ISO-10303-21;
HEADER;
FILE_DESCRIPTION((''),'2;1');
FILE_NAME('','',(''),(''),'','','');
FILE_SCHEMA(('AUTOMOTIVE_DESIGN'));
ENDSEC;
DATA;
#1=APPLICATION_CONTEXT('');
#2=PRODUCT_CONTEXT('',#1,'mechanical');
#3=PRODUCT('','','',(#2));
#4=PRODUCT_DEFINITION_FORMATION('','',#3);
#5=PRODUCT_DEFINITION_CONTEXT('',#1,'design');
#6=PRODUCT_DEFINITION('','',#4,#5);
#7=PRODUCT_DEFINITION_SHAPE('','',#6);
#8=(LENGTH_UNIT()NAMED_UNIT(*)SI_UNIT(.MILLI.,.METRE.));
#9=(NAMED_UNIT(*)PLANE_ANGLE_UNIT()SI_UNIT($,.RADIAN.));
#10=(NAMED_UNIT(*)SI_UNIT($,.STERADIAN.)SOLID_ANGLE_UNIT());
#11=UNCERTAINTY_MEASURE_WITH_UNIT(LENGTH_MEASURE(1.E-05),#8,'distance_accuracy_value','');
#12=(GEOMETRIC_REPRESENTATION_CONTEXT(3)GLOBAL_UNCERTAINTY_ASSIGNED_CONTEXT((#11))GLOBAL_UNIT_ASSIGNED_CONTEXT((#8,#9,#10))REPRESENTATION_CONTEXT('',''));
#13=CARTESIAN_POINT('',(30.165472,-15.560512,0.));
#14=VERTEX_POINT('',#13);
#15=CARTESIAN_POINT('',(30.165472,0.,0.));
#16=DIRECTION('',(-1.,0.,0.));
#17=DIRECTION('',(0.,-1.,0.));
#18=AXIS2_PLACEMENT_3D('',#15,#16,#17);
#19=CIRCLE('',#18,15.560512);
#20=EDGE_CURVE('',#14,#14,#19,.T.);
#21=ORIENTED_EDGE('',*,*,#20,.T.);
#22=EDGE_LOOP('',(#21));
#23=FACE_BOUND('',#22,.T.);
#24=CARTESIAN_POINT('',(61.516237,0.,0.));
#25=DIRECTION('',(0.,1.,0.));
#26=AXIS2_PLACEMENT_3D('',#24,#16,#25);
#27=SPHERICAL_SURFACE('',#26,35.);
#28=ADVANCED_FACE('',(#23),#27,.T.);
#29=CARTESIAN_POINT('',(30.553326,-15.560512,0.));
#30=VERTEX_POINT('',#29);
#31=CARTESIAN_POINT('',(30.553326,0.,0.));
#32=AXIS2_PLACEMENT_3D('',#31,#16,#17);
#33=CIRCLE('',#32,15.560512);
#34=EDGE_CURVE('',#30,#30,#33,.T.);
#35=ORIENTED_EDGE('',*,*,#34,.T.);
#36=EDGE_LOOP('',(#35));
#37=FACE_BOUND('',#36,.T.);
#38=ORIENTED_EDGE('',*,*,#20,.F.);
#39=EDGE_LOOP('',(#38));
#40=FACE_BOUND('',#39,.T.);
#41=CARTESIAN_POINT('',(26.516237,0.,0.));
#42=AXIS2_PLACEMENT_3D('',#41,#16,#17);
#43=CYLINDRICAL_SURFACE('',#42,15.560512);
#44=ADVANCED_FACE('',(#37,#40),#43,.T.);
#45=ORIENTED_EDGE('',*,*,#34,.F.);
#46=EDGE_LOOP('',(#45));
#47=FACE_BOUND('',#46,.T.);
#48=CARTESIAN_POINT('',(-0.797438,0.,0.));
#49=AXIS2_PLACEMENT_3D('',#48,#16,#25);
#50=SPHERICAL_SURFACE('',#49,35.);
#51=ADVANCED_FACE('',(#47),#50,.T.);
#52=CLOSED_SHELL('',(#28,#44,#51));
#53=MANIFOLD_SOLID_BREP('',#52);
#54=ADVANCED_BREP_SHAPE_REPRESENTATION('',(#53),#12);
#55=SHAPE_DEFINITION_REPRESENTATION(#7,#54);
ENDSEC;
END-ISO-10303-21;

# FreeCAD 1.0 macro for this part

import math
import FreeCAD as App
import Part
import Sketcher

V = App.Vector
Q = App.Units.Quantity

doc = App.newDocument("Part")
body = doc.addObject("PartDesign::Body", "Body")

# Sketch on XY plane
sketch1 = body.newObject("Sketcher::SketchObject", "Sketch")
sketch1.AttachmentSupport = (doc.getObject("XY_Plane"), [""])
sketch1.MapMode = "FlatFace"
sketch1.addGeometry([
    Part.LineSegment(V(26.52, 0, 0), V(34.2, 0, 0)),
    Part.ArcOfCircle(Part.Circle(V(-0.8, 0, 0), V(0, 0, 1), 35), math.radians(0), math.radians(26)),
    Part.LineSegment(V(30.55, 15.56, 0), V(30.17, 15.56, 0)),
    Part.ArcOfCircle(Part.Circle(V(61.52, 0, 0), V(0, 0, 1), 35), math.radians(154), math.radians(180)),
], False)
sketch1.addConstraint([
    Sketcher.Constraint("Coincident", 0, 2, 1, 1),
    Sketcher.Constraint("Coincident", 1, 2, 2, 1),
    Sketcher.Constraint("Coincident", 2, 2, 3, 1),
    Sketcher.Constraint("Coincident", 3, 2, 0, 1),
    Sketcher.Constraint("Horizontal", 0),
    Sketcher.Constraint("Horizontal", 2),
    Sketcher.Constraint("Equal", 1, 3),
    Sketcher.Constraint("PointOnObject", 1, 3, -1),
    Sketcher.Constraint("PointOnObject", 3, 3, -1),
    Sketcher.Constraint("PointOnObject", 0, 2, -1),
    Sketcher.Constraint("Radius", 1, Q("35 mm")),
    Sketcher.Constraint("DistanceX", 0, 1, 0, 2, Q("7.686325 mm")),
    Sketcher.Constraint("DistanceX", 2, 2, 2, 1, Q("0.387854 mm")),
    Sketcher.Constraint("DistanceX", 1, 3, -1, 1, Q("0.797439 mm")),
])
revolution = body.newObject("PartDesign::Revolution", "Revolution")
revolution.Profile = sketch1
revolution.ReferenceAxis = (sketch1, ["H_Axis"])
revolution.Angle = 360

doc.recompute()
